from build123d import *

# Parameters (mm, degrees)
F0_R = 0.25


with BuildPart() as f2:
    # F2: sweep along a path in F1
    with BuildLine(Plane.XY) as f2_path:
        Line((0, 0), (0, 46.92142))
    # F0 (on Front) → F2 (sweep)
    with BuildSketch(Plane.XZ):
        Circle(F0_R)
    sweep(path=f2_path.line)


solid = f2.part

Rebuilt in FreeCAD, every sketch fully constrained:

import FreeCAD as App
import Part
import Sketcher

doc = App.newDocument("Part")
body = doc.addObject("PartDesign::Body", "Body")

# Sketch on XZ plane
sketch1 = doc.addObject("Sketcher::SketchObject", "Sketch")
body.addObject(sketch1)
sketch1.AttachmentSupport = (doc.XZ_Plane, [""])
sketch1.MapMode = "FlatFace"
sketch1.addGeometry(Part.Circle(App.Vector(0, 0, 0), App.Vector(0, 0, 1), 0.25), False)
sketch1.addConstraint([
    Sketcher.Constraint("Coincident", 0, 3, -1, 1),
    Sketcher.Constraint("Diameter", 0, 0.5),
])

# Sketch on XY plane
sketch2 = doc.addObject("Sketcher::SketchObject", "Sketch001")
body.addObject(sketch2)
sketch2.AttachmentSupport = (doc.XY_Plane, [""])
sketch2.MapMode = "FlatFace"
sketch2.addGeometry(Part.LineSegment(App.Vector(0, 0, 0), App.Vector(0, 47, 0)), False)
sketch2.addConstraint([
    Sketcher.Constraint("Vertical", 0),
    Sketcher.Constraint("Coincident", 0, 1, -1, 1),
    Sketcher.Constraint("DistanceY", 0, 1, 0, 2, 46.92142),
])
doc.recompute()

additivepipe = doc.addObject("PartDesign::AdditivePipe", "AdditivePipe")
body.addObject(additivepipe)
additivepipe.Profile = sketch1
additivepipe.Spine = (sketch2, ["Edge1"])

doc.recompute()
